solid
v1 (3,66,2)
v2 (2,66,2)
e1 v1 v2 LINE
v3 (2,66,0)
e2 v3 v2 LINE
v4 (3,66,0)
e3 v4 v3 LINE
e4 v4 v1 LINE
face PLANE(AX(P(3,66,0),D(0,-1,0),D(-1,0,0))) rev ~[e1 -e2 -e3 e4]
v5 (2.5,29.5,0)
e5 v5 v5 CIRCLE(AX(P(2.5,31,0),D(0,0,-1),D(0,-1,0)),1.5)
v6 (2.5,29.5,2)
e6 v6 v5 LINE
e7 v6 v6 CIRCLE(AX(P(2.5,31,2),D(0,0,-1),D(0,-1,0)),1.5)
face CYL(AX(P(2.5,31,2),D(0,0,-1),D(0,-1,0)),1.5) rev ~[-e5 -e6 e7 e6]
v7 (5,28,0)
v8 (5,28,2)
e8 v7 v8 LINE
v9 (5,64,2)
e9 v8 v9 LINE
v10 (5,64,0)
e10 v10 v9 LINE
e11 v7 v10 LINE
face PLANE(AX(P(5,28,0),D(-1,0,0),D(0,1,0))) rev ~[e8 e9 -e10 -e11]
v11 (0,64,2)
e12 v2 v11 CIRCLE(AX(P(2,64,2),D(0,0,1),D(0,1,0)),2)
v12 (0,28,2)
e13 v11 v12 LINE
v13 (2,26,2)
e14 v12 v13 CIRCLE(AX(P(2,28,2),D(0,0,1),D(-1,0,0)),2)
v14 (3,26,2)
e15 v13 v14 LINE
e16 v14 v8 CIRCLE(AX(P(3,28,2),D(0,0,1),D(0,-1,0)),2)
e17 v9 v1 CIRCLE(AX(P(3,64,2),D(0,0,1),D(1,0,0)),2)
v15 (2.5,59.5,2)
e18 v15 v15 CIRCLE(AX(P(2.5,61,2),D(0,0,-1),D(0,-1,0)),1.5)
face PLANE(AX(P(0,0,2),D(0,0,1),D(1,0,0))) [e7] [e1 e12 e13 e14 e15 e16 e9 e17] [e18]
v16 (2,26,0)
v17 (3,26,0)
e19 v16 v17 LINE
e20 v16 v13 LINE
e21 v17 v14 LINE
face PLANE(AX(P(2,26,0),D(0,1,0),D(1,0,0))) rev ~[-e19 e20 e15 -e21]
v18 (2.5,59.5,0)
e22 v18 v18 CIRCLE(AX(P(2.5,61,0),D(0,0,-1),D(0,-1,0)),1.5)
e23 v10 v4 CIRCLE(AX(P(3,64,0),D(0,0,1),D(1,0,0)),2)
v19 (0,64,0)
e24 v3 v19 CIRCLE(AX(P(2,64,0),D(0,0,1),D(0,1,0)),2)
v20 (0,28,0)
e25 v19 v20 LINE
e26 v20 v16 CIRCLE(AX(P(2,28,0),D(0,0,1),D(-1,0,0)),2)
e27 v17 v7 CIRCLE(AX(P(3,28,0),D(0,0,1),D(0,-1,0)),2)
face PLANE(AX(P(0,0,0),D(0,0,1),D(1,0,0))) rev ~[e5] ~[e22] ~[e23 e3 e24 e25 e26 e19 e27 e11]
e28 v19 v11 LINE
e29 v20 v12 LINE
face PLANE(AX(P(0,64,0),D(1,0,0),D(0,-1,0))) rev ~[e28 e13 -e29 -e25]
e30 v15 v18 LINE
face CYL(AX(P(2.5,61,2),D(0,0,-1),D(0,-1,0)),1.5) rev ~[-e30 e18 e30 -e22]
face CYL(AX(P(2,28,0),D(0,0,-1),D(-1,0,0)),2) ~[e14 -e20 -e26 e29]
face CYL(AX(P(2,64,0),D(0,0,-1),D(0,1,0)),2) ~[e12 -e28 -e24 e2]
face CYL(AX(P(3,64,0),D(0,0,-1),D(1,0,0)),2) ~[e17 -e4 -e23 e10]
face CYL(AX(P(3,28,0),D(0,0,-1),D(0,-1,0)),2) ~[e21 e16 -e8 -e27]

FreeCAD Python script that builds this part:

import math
import FreeCAD as App
import Part
import Sketcher

doc = App.newDocument("Part")
body = doc.addObject("PartDesign::Body", "Body")

# Sketch on XY plane
sketch1 = doc.addObject("Sketcher::SketchObject", "Sketch")
body.addObject(sketch1)
sketch1.AttachmentSupport = (doc.XY_Plane, [""])
sketch1.MapMode = "FlatFace"
sketch1.addGeometry(Part.ArcOfCircle(Part.Circle(App.Vector(2, 28, 0), App.Vector(0, 0, 1), 2), math.radians(180), math.radians(270)), False)
sketch1.addGeometry(Part.LineSegment(App.Vector(2, 26, 0), App.Vector(3, 26, 0)), False)
sketch1.addGeometry(Part.ArcOfCircle(Part.Circle(App.Vector(3, 28, 0), App.Vector(0, 0, 1), 2), math.radians(-90), math.radians(0)), False)
sketch1.addGeometry(Part.LineSegment(App.Vector(5, 28, 0), App.Vector(5, 64, 0)), False)
sketch1.addGeometry(Part.ArcOfCircle(Part.Circle(App.Vector(3, 64, 0), App.Vector(0, 0, 1), 2), math.radians(0), math.radians(90)), False)
sketch1.addGeometry(Part.LineSegment(App.Vector(3, 66, 0), App.Vector(2, 66, 0)), False)
sketch1.addGeometry(Part.ArcOfCircle(Part.Circle(App.Vector(2, 64, 0), App.Vector(0, 0, 1), 2), math.radians(90), math.radians(180)), False)
sketch1.addGeometry(Part.LineSegment(App.Vector(0, 64, 0), App.Vector(0, 28, 0)), False)
sketch1.addConstraint(Sketcher.Constraint("Tangent", 0, 2, 1, 1))
sketch1.addConstraint(Sketcher.Constraint("Tangent", 1, 2, 2, 1))
sketch1.addConstraint(Sketcher.Constraint("Tangent", 2, 2, 3, 1))
sketch1.addConstraint(Sketcher.Constraint("Tangent", 3, 2, 4, 1))
sketch1.addConstraint(Sketcher.Constraint("Tangent", 4, 2, 5, 1))
sketch1.addConstraint(Sketcher.Constraint("Tangent", 5, 2, 6, 1))
sketch1.addConstraint(Sketcher.Constraint("Tangent", 6, 2, 7, 1))
sketch1.addConstraint(Sketcher.Constraint("Tangent", 7, 2, 0, 1))
sketch1.addConstraint(Sketcher.Constraint("Horizontal", 1))
sketch1.addConstraint(Sketcher.Constraint("Vertical", 3))
sketch1.addConstraint(Sketcher.Constraint("Horizontal", 5))
sketch1.addConstraint(Sketcher.Constraint("Vertical", 7))
sketch1.addConstraint(Sketcher.Constraint("Equal", 0, 2))
sketch1.addConstraint(Sketcher.Constraint("Equal", 2, 4))
sketch1.addConstraint(Sketcher.Constraint("Equal", 4, 6))
sketch1.addConstraint(Sketcher.Constraint("PointOnObject", 6, 2, -2))
sketch1.addConstraint(Sketcher.Constraint("Radius", 0, 2.0))
sketch1.addConstraint(Sketcher.Constraint("DistanceX", -1, 1, 2, 2, 5.0))
sketch1.addConstraint(Sketcher.Constraint("DistanceY", 3, 1, 3, 2, 36.0))
sketch1.addConstraint(Sketcher.Constraint("DistanceY", -1, 1, 0, 3, 28.0))
pad1 = doc.addObject("PartDesign::Pad", "Pad")
body.addObject(pad1)
pad1.Profile = sketch1
pad1.Length = 2

# Sketch on XY plane
sketch2 = doc.addObject("Sketcher::SketchObject", "Sketch001")
body.addObject(sketch2)
sketch2.AttachmentSupport = (doc.XY_Plane, [""])
sketch2.MapMode = "FlatFace"
sketch2.AttachmentOffset = App.Placement(App.Vector(0, 0, 2), App.Rotation())
sketch2.addGeometry(Part.Circle(App.Vector(2.5, 61, 0), App.Vector(0, 0, 1), 1.5), False)
sketch2.addConstraint(Sketcher.Constraint("Diameter", 0, 3.0))
sketch2.addConstraint(Sketcher.Constraint("DistanceY", -1, 1, 0, 3, 61.0))
sketch2.addConstraint(Sketcher.Constraint("DistanceX", -1, 1, 0, 3, 2.5))
doc.recompute()
hole = doc.addObject("PartDesign::Hole", "Hole")
body.addObject(hole)
hole.Profile = sketch2
hole.ThreadType = "None"
hole.Diameter = 3
hole.DepthType = "ThroughAll"

# Sketch on XY plane
sketch3 = doc.addObject("Sketcher::SketchObject", "Sketch002")
body.addObject(sketch3)
sketch3.AttachmentSupport = (doc.XY_Plane, [""])
sketch3.MapMode = "FlatFace"
sketch3.AttachmentOffset = App.Placement(App.Vector(0, 0, 2), App.Rotation())
sketch3.addGeometry(Part.Circle(App.Vector(2.5, 31, 0), App.Vector(0, 0, 1), 1.5), False)
sketch3.addConstraint(Sketcher.Constraint("Diameter", 0, 3.0))
sketch3.addConstraint(Sketcher.Constraint("DistanceY", -1, 1, 0, 3, 31.0))
sketch3.addConstraint(Sketcher.Constraint("DistanceX", -1, 1, 0, 3, 2.5))
doc.recompute()
hole2 = doc.addObject("PartDesign::Hole", "Hole001")
body.addObject(hole2)
hole2.Profile = sketch3
hole2.ThreadType = "None"
hole2.Diameter = 3
hole2.DepthType = "ThroughAll"

doc.recompute()
